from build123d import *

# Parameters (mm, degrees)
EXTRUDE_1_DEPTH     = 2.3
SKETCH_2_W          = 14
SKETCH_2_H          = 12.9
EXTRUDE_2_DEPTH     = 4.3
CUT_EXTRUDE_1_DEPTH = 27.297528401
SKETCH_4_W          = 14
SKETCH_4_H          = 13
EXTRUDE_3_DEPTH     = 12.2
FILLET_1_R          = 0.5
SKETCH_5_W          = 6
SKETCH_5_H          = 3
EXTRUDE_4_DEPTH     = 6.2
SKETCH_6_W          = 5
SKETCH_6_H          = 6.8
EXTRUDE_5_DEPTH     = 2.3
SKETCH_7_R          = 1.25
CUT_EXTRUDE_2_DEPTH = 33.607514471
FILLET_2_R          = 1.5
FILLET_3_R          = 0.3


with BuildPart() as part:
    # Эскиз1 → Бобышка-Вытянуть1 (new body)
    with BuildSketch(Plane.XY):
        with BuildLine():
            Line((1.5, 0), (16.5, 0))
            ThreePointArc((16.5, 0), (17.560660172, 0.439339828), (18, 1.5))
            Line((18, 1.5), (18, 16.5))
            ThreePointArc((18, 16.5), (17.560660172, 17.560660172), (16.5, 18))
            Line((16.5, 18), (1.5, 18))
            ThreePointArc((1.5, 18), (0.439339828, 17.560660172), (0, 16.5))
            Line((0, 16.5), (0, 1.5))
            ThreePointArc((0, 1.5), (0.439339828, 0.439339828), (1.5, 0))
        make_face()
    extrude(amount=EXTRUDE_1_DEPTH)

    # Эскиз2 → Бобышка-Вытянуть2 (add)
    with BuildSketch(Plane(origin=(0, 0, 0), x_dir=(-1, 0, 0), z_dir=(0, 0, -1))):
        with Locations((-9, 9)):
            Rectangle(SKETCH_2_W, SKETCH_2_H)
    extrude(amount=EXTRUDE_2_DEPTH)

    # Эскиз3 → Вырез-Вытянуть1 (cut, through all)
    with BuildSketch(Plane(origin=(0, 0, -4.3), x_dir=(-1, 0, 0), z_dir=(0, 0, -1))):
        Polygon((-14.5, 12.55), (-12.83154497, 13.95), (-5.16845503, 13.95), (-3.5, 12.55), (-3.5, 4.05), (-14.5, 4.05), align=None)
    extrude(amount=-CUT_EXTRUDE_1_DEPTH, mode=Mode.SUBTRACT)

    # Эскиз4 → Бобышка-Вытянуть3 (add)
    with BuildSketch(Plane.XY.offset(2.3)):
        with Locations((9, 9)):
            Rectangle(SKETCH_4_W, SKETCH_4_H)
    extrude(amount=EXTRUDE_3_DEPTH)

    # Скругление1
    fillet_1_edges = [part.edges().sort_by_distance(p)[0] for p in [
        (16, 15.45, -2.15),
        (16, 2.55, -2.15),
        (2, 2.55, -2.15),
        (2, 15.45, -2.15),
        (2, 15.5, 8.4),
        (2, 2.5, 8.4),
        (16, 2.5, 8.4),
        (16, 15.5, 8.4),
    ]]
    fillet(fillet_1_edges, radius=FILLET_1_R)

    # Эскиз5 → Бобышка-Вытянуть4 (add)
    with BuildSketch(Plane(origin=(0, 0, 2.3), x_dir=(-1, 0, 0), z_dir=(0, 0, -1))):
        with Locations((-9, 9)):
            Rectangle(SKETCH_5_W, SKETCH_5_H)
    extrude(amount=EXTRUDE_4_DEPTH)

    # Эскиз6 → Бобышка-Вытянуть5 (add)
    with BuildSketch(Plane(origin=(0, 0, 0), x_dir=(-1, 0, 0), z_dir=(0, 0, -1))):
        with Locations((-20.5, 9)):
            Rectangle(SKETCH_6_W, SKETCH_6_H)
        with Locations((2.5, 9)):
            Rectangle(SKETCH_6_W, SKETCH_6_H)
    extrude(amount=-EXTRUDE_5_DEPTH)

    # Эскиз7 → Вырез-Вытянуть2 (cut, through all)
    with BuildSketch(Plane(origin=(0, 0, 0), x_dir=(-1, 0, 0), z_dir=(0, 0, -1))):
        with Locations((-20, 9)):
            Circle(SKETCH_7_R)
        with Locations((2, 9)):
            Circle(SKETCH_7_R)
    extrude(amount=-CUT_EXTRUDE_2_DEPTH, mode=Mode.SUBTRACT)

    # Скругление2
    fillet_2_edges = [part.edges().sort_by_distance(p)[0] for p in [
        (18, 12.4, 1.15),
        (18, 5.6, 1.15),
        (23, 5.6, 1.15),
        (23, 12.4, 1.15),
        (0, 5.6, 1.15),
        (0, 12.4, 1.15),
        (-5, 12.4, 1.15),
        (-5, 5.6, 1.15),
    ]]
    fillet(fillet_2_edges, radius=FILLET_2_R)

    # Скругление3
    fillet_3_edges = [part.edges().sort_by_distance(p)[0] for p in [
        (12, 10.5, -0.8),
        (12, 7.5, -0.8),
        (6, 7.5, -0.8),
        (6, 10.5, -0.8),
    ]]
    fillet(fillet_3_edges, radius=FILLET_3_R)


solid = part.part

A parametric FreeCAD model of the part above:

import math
import FreeCAD as App
import Part
import Sketcher

V = App.Vector
Q = App.Units.Quantity


def edges_at(feature, points):
    """Names of the edges that pass closest to the given points."""
    edges = feature.Shape.Edges
    near = lambda p: min(range(len(edges)), key=lambda i: edges[i].distToShape(Part.Vertex(*p))[0])
    return sorted({f"Edge{near(p) + 1}" for p in points})

doc = App.newDocument("Part")
body = doc.addObject("PartDesign::Body", "Body")

sketch1 = body.newObject("Sketcher::SketchObject", "Sketch")
sketch1.AttachmentSupport = (doc.getObject("XY_Plane"), [""])
sketch1.MapMode = "FlatFace"
sketch1.addGeometry(Part.LineSegment(V(1.5, 0, 0), V(16.5, 0, 0)), False)
sketch1.addGeometry(Part.ArcOfCircle(Part.Circle(V(16.5, 1.5, 0), V(0, 0, 1), 1.5), math.radians(-90), math.radians(0)), False)
sketch1.addGeometry(Part.LineSegment(V(18, 1.5, 0), V(18, 16.5, 0)), False)
sketch1.addGeometry(Part.ArcOfCircle(Part.Circle(V(16.5, 16.5, 0), V(0, 0, 1), 1.5), math.radians(0), math.radians(90)), False)
sketch1.addGeometry(Part.LineSegment(V(16.5, 18, 0), V(1.5, 18, 0)), False)
sketch1.addGeometry(Part.ArcOfCircle(Part.Circle(V(1.5, 16.5, 0), V(0, 0, 1), 1.5), math.radians(90), math.radians(180)), False)
sketch1.addGeometry(Part.LineSegment(V(0, 16.5, 0), V(0, 1.5, 0)), False)
sketch1.addGeometry(Part.ArcOfCircle(Part.Circle(V(1.5, 1.5, 0), V(0, 0, 1), 1.5), math.radians(180), math.radians(270)), False)
sketch1.addConstraint(Sketcher.Constraint("Tangent", 0, 2, 1, 1))
sketch1.addConstraint(Sketcher.Constraint("Tangent", 1, 2, 2, 1))
sketch1.addConstraint(Sketcher.Constraint("Tangent", 2, 2, 3, 1))
sketch1.addConstraint(Sketcher.Constraint("Tangent", 3, 2, 4, 1))
sketch1.addConstraint(Sketcher.Constraint("Tangent", 4, 2, 5, 1))
sketch1.addConstraint(Sketcher.Constraint("Tangent", 5, 2, 6, 1))
sketch1.addConstraint(Sketcher.Constraint("Tangent", 6, 2, 7, 1))
sketch1.addConstraint(Sketcher.Constraint("Tangent", 7, 2, 0, 1))
sketch1.addConstraint(Sketcher.Constraint("Horizontal", 0))
sketch1.addConstraint(Sketcher.Constraint("Vertical", 2))
sketch1.addConstraint(Sketcher.Constraint("Horizontal", 4))
sketch1.addConstraint(Sketcher.Constraint("Vertical", 6))
sketch1.addConstraint(Sketcher.Constraint("Equal", 1, 3))
sketch1.addConstraint(Sketcher.Constraint("Equal", 3, 5))
sketch1.addConstraint(Sketcher.Constraint("Equal", 5, 7))
sketch1.addConstraint(Sketcher.Constraint("PointOnObject", 0, 2, -1))
sketch1.addConstraint(Sketcher.Constraint("PointOnObject", 5, 2, -2))
sketch1.addConstraint(Sketcher.Constraint("Equal", 4, 2))
sketch1.addConstraint(Sketcher.Constraint("Radius", 1, 1.5))
sketch1.addConstraint(Sketcher.Constraint("DistanceX", 0, 1, 0, 2, 15.0))
pad1 = body.newObject("PartDesign::Pad", "Pad")
pad1.Profile = sketch1
pad1.Length = 2.3

sketch2 = body.newObject("Sketcher::SketchObject", "Sketch001")
sketch2.AttachmentSupport = (doc.getObject("XY_Plane"), [""])
sketch2.MapMode = "FlatFace"
sketch2.addGeometry(Part.LineSegment(V(16, 15, 0), V(16, 3, 0)), False)
sketch2.addGeometry(Part.LineSegment(V(16, 3, 0), V(2, 3, 0)), False)
sketch2.addGeometry(Part.LineSegment(V(2, 3, 0), V(2, 15, 0)), False)
sketch2.addGeometry(Part.LineSegment(V(2, 15, 0), V(16, 15, 0)), False)
sketch2.addConstraint(Sketcher.Constraint("Coincident", 0, 2, 1, 1))
sketch2.addConstraint(Sketcher.Constraint("Coincident", 1, 2, 2, 1))
sketch2.addConstraint(Sketcher.Constraint("Coincident", 2, 2, 3, 1))
sketch2.addConstraint(Sketcher.Constraint("Coincident", 3, 2, 0, 1))
sketch2.addConstraint(Sketcher.Constraint("Vertical", 0))
sketch2.addConstraint(Sketcher.Constraint("Horizontal", 1))
sketch2.addConstraint(Sketcher.Constraint("Vertical", 2))
sketch2.addConstraint(Sketcher.Constraint("Horizontal", 3))
sketch2.addConstraint(Sketcher.Constraint("DistanceX", 1, 2, 1, 1, 14.0))
sketch2.addConstraint(Sketcher.Constraint("DistanceY", 0, 2, 0, 1, 12.9))
sketch2.addConstraint(Sketcher.Constraint("DistanceX", -1, 1, 0, 2, 16.0))
sketch2.addConstraint(Sketcher.Constraint("DistanceY", -1, 1, 0, 2, 2.55))
pad2 = body.newObject("PartDesign::Pad", "Pad001")
pad2.Profile = sketch2
pad2.Length = 4.3
pad2.Reversed = True

sketch3 = body.newObject("Sketcher::SketchObject", "Sketch002")
sketch3.AttachmentSupport = (doc.getObject("XY_Plane"), [""])
sketch3.MapMode = "FlatFace"
sketch3.AttachmentOffset = App.Placement(V(0, 0, -4.3), App.Rotation())
sketch3.addGeometry(Part.LineSegment(V(12.8, 13.9, 0), V(14.5, 12.6, 0)), False)
sketch3.addGeometry(Part.LineSegment(V(14.5, 12.6, 0), V(14.5, 4, 0)), False)
sketch3.addGeometry(Part.LineSegment(V(14.5, 4, 0), V(3.5, 4, 0)), False)
sketch3.addGeometry(Part.LineSegment(V(3.5, 4, 0), V(3.5, 12.6, 0)), False)
sketch3.addGeometry(Part.LineSegment(V(3.5, 12.6, 0), V(5.2, 13.9, 0)), False)
sketch3.addGeometry(Part.LineSegment(V(5.2, 13.9, 0), V(12.8, 13.9, 0)), False)
sketch3.addConstraint(Sketcher.Constraint("Coincident", 0, 2, 1, 1))
sketch3.addConstraint(Sketcher.Constraint("Coincident", 1, 2, 2, 1))
sketch3.addConstraint(Sketcher.Constraint("Coincident", 2, 2, 3, 1))
sketch3.addConstraint(Sketcher.Constraint("Coincident", 3, 2, 4, 1))
sketch3.addConstraint(Sketcher.Constraint("Coincident", 4, 2, 5, 1))
sketch3.addConstraint(Sketcher.Constraint("Coincident", 5, 2, 0, 1))
sketch3.addConstraint(Sketcher.Constraint("Vertical", 1))
sketch3.addConstraint(Sketcher.Constraint("Horizontal", 2))
sketch3.addConstraint(Sketcher.Constraint("Vertical", 3))
sketch3.addConstraint(Sketcher.Constraint("Horizontal", 5))
sketch3.addConstraint(Sketcher.Constraint("Horizontal", 0, 2, 3, 2))
sketch3.addConstraint(Sketcher.Constraint("Equal", 0, 4))
sketch3.addConstraint(Sketcher.Constraint("DistanceX", 2, 2, 2, 1, 11.0))
sketch3.addConstraint(Sketcher.Constraint("Angle", 0, Q("-40 deg")))
sketch3.addConstraint(Sketcher.Constraint("DistanceY", 1, 2, 1, 1, 8.5))
sketch3.addConstraint(Sketcher.Constraint("DistanceX", -1, 1, 0, 2, 14.5))
sketch3.addConstraint(Sketcher.Constraint("DistanceY", 3, 2, 4, 2, 1.4))
sketch3.addConstraint(Sketcher.Constraint("DistanceY", -1, 1, 0, 2, 12.55))
pocket1 = body.newObject("PartDesign::Pocket", "Pocket")
pocket1.Profile = sketch3
pocket1.Type = "ThroughAll"
pocket1.Reversed = True

sketch4 = body.newObject("Sketcher::SketchObject", "Sketch003")
sketch4.AttachmentSupport = (doc.getObject("XY_Plane"), [""])
sketch4.MapMode = "FlatFace"
sketch4.AttachmentOffset = App.Placement(V(0, 0, 2.3), App.Rotation())
sketch4.addGeometry(Part.LineSegment(V(2, 16, 0), V(2, 2, 0)), False)
sketch4.addGeometry(Part.LineSegment(V(2, 2, 0), V(16, 2, 0)), False)
sketch4.addGeometry(Part.LineSegment(V(16, 2, 0), V(16, 16, 0)), False)
sketch4.addGeometry(Part.LineSegment(V(16, 16, 0), V(2, 16, 0)), False)
sketch4.addConstraint(Sketcher.Constraint("Coincident", 0, 2, 1, 1))
sketch4.addConstraint(Sketcher.Constraint("Coincident", 1, 2, 2, 1))
sketch4.addConstraint(Sketcher.Constraint("Coincident", 2, 2, 3, 1))
sketch4.addConstraint(Sketcher.Constraint("Coincident", 3, 2, 0, 1))
sketch4.addConstraint(Sketcher.Constraint("Vertical", 0))
sketch4.addConstraint(Sketcher.Constraint("Horizontal", 1))
sketch4.addConstraint(Sketcher.Constraint("Vertical", 2))
sketch4.addConstraint(Sketcher.Constraint("Horizontal", 3))
sketch4.addConstraint(Sketcher.Constraint("DistanceX", 1, 1, 1, 2, 14.0))
sketch4.addConstraint(Sketcher.Constraint("DistanceY", 0, 2, 0, 1, 13.0))
sketch4.addConstraint(Sketcher.Constraint("DistanceX", -1, 1, 0, 2, 2.0))
sketch4.addConstraint(Sketcher.Constraint("DistanceY", -1, 1, 0, 2, 2.5))
pad3 = body.newObject("PartDesign::Pad", "Pad002")
pad3.Profile = sketch4
pad3.Length = 12.2
doc.recompute()

fillet = body.newObject("PartDesign::Fillet", "Fillet")
fillet.Base = (pad3, edges_at(pad3, [
    (16, 15.45, -2.15),
    (16, 2.55, -2.15),
    (2, 2.55, -2.15),
    (2, 15.45, -2.15),
    (2, 15.5, 8.4),
    (2, 2.5, 8.4),
    (16, 2.5, 8.4),
    (16, 15.5, 8.4),
]))
fillet.Radius = 0.5

sketch5 = body.newObject("Sketcher::SketchObject", "Sketch004")
sketch5.AttachmentSupport = (doc.getObject("XY_Plane"), [""])
sketch5.MapMode = "FlatFace"
sketch5.AttachmentOffset = App.Placement(V(0, 0, 2.3), App.Rotation())
sketch5.addGeometry(Part.LineSegment(V(12, 10.5, 0), V(12, 7.5, 0)), False)
sketch5.addGeometry(Part.LineSegment(V(12, 7.5, 0), V(6, 7.5, 0)), False)
sketch5.addGeometry(Part.LineSegment(V(6, 7.5, 0), V(6, 10.5, 0)), False)
sketch5.addGeometry(Part.LineSegment(V(6, 10.5, 0), V(12, 10.5, 0)), False)
sketch5.addConstraint(Sketcher.Constraint("Coincident", 0, 2, 1, 1))
sketch5.addConstraint(Sketcher.Constraint("Coincident", 1, 2, 2, 1))
sketch5.addConstraint(Sketcher.Constraint("Coincident", 2, 2, 3, 1))
sketch5.addConstraint(Sketcher.Constraint("Coincident", 3, 2, 0, 1))
sketch5.addConstraint(Sketcher.Constraint("Vertical", 0))
sketch5.addConstraint(Sketcher.Constraint("Horizontal", 1))
sketch5.addConstraint(Sketcher.Constraint("Vertical", 2))
sketch5.addConstraint(Sketcher.Constraint("Horizontal", 3))
sketch5.addConstraint(Sketcher.Constraint("DistanceX", 1, 2, 1, 1, 6.0))
sketch5.addConstraint(Sketcher.Constraint("DistanceY", 0, 2, 0, 1, 3.0))
sketch5.addConstraint(Sketcher.Constraint("DistanceX", -1, 1, 0, 2, 12.0))
sketch5.addConstraint(Sketcher.Constraint("DistanceY", -1, 1, 0, 2, 7.5))
pad4 = body.newObject("PartDesign::Pad", "Pad003")
pad4.Profile = sketch5
pad4.Length = 6.2
pad4.Reversed = True

sketch6 = body.newObject("Sketcher::SketchObject", "Sketch005")
sketch6.AttachmentSupport = (doc.getObject("XY_Plane"), [""])
sketch6.MapMode = "FlatFace"
sketch6.addGeometry(Part.LineSegment(V(23, 12, 0), V(23, 6, 0)), False)
sketch6.addGeometry(Part.LineSegment(V(23, 6, 0), V(18, 6, 0)), False)
sketch6.addGeometry(Part.LineSegment(V(18, 6, 0), V(18, 12, 0)), False)
sketch6.addGeometry(Part.LineSegment(V(18, 12, 0), V(23, 12, 0)), False)
sketch6.addGeometry(Part.LineSegment(V(0, 12, 0), V(0, 6, 0)), False)
sketch6.addGeometry(Part.LineSegment(V(0, 6, 0), V(-5, 6, 0)), False)
sketch6.addGeometry(Part.LineSegment(V(-5, 6, 0), V(-5, 12, 0)), False)
sketch6.addGeometry(Part.LineSegment(V(-5, 12, 0), V(0, 12, 0)), False)
sketch6.addConstraint(Sketcher.Constraint("Coincident", 0, 2, 1, 1))
sketch6.addConstraint(Sketcher.Constraint("Coincident", 1, 2, 2, 1))
sketch6.addConstraint(Sketcher.Constraint("Coincident", 2, 2, 3, 1))
sketch6.addConstraint(Sketcher.Constraint("Coincident", 3, 2, 0, 1))
sketch6.addConstraint(Sketcher.Constraint("Coincident", 4, 2, 5, 1))
sketch6.addConstraint(Sketcher.Constraint("Coincident", 5, 2, 6, 1))
sketch6.addConstraint(Sketcher.Constraint("Coincident", 6, 2, 7, 1))
sketch6.addConstraint(Sketcher.Constraint("Coincident", 7, 2, 4, 1))
sketch6.addConstraint(Sketcher.Constraint("Vertical", 0))
sketch6.addConstraint(Sketcher.Constraint("Horizontal", 1))
sketch6.addConstraint(Sketcher.Constraint("Vertical", 2))
sketch6.addConstraint(Sketcher.Constraint("Horizontal", 3))
sketch6.addConstraint(Sketcher.Constraint("Vertical", 4))
sketch6.addConstraint(Sketcher.Constraint("Horizontal", 5))
sketch6.addConstraint(Sketcher.Constraint("Vertical", 6))
sketch6.addConstraint(Sketcher.Constraint("Horizontal", 7))
sketch6.addConstraint(Sketcher.Constraint("PointOnObject", 4, 2, -2))
sketch6.addConstraint(Sketcher.Constraint("Horizontal", 1, 2, 4, 2))
sketch6.addConstraint(Sketcher.Constraint("Horizontal", 3, 2, 6, 2))
sketch6.addConstraint(Sketcher.Constraint("Equal", 3, 5))
sketch6.addConstraint(Sketcher.Constraint("DistanceX", 1, 2, 1, 1, 5.0))
sketch6.addConstraint(Sketcher.Constraint("DistanceY", 0, 2, 0, 1, 6.8))
sketch6.addConstraint(Sketcher.Constraint("DistanceX", -1, 1, 0, 2, 23.0))
sketch6.addConstraint(Sketcher.Constraint("DistanceY", -1, 1, 0, 2, 5.6))
pad5 = body.newObject("PartDesign::Pad", "Pad004")
pad5.Profile = sketch6
pad5.Length = 2.3

sketch7 = body.newObject("Sketcher::SketchObject", "Sketch006")
sketch7.AttachmentSupport = (doc.getObject("XY_Plane"), [""])
sketch7.MapMode = "FlatFace"
sketch7.addGeometry(Part.Circle(V(20, 9, 0), V(0, 0, 1), 1.2), False)
sketch7.addGeometry(Part.Circle(V(-2, 9, 0), V(0, 0, 1), 1.2), False)
sketch7.addConstraint(Sketcher.Constraint("Equal", 0, 1))
sketch7.addConstraint(Sketcher.Constraint("Horizontal", 0, 3, 1, 3))
sketch7.addConstraint(Sketcher.Constraint("Diameter", 0, 2.5))
sketch7.addConstraint(Sketcher.Constraint("DistanceX", -1, 1, 0, 3, 20.0))
sketch7.addConstraint(Sketcher.Constraint("DistanceY", -1, 1, 0, 3, 9.0))
sketch7.addConstraint(Sketcher.Constraint("DistanceX", 1, 3, -1, 1, 2.0))
pocket2 = body.newObject("PartDesign::Pocket", "Pocket001")
pocket2.Profile = sketch7
pocket2.Type = "ThroughAll"
pocket2.Reversed = True
doc.recompute()

fillet2 = body.newObject("PartDesign::Fillet", "Fillet001")
fillet2.Base = (pocket2, edges_at(pocket2, [
    (18, 12.4, 1.15),
    (18, 5.6, 1.15),
    (23, 5.6, 1.15),
    (23, 12.4, 1.15),
    (0, 5.6, 1.15),
    (0, 12.4, 1.15),
    (-5, 12.4, 1.15),
    (-5, 5.6, 1.15),
]))
fillet2.Radius = 1.5
doc.recompute()

fillet3 = body.newObject("PartDesign::Fillet", "Fillet002")
fillet3.Base = (fillet2, edges_at(fillet2, [
    (12, 10.5, -0.8),
    (12, 7.5, -0.8),
    (6, 7.5, -0.8),
    (6, 10.5, -0.8),
]))
fillet3.Radius = 0.3

doc.recompute()
